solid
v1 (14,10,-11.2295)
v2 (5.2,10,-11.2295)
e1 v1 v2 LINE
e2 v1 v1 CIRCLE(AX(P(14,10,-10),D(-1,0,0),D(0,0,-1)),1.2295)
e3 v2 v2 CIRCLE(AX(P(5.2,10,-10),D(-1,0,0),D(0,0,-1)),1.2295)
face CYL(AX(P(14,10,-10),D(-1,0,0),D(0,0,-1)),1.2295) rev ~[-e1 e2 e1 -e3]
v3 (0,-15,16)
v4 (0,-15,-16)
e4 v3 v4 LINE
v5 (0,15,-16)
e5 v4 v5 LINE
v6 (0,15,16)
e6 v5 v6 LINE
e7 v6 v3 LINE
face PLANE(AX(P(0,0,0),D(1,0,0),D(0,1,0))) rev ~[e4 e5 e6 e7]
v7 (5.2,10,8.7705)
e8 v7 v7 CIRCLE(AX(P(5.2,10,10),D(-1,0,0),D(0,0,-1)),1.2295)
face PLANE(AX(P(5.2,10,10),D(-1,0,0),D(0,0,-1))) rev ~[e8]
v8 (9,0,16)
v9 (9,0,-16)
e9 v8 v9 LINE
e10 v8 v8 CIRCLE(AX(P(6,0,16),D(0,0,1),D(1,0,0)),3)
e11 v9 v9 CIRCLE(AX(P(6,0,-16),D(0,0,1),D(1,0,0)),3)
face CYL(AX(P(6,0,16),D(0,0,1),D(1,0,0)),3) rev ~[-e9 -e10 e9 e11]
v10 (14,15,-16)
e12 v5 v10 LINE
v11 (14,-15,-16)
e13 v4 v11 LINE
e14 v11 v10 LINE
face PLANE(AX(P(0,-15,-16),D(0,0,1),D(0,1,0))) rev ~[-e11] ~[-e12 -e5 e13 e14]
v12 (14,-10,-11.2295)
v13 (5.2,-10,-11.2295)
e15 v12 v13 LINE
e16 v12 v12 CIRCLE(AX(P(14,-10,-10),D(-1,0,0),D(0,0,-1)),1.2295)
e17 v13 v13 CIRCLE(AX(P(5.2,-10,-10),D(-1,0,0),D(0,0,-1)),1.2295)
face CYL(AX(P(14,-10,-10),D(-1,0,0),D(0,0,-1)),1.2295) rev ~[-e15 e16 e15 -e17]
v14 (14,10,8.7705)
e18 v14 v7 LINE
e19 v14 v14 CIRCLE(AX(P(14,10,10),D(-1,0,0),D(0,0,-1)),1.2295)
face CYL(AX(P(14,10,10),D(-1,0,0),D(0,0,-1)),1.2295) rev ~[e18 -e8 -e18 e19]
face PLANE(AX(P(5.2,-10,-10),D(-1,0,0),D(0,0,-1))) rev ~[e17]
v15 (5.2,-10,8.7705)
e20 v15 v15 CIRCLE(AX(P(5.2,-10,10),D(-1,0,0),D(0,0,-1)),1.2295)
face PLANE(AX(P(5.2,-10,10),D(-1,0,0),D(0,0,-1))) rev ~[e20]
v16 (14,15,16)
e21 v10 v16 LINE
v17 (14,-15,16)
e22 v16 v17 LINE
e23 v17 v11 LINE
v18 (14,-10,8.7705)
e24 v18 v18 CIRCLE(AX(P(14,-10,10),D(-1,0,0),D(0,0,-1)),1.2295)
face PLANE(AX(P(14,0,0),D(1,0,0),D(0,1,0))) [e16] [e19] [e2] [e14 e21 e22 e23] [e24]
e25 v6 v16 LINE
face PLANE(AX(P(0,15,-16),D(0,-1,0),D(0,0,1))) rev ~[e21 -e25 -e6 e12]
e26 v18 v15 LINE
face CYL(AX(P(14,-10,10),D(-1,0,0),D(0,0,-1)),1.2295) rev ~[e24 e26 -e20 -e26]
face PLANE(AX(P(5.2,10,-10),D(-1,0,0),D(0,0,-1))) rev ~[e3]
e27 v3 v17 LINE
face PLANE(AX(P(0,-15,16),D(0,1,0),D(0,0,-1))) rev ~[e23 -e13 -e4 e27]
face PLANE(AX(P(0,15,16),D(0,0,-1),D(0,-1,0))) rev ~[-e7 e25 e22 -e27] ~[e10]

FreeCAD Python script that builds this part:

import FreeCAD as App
import Part
import Sketcher

V = App.Vector

doc = App.newDocument("Part")
body = doc.addObject("PartDesign::Body", "Body")

sketch1 = body.newObject("Sketcher::SketchObject", "Sketch")
sketch1.AttachmentSupport = (doc.getObject("YZ_Plane"), [""])
sketch1.MapMode = "FlatFace"
sketch1.addGeometry(Part.LineSegment(V(-15, 16, 0), V(-15, -16, 0)), False)
sketch1.addGeometry(Part.LineSegment(V(-15, -16, 0), V(15, -16, 0)), False)
sketch1.addGeometry(Part.LineSegment(V(15, -16, 0), V(15, 16, 0)), False)
sketch1.addGeometry(Part.LineSegment(V(15, 16, 0), V(-15, 16, 0)), False)
sketch1.addConstraint(Sketcher.Constraint("Coincident", 0, 2, 1, 1))
sketch1.addConstraint(Sketcher.Constraint("Coincident", 1, 2, 2, 1))
sketch1.addConstraint(Sketcher.Constraint("Coincident", 2, 2, 3, 1))
sketch1.addConstraint(Sketcher.Constraint("Coincident", 3, 2, 0, 1))
sketch1.addConstraint(Sketcher.Constraint("Vertical", 0))
sketch1.addConstraint(Sketcher.Constraint("Horizontal", 1))
sketch1.addConstraint(Sketcher.Constraint("Vertical", 2))
sketch1.addConstraint(Sketcher.Constraint("Horizontal", 3))
sketch1.addConstraint(Sketcher.Constraint("Symmetric", 0, 2, 2, 2, -1, 1))
sketch1.addConstraint(Sketcher.Constraint("DistanceX", 1, 1, 1, 2, 30.0))
sketch1.addConstraint(Sketcher.Constraint("DistanceY", 0, 2, 0, 1, 32.0))
pad1 = body.newObject("PartDesign::Pad", "Pad")
pad1.Profile = sketch1
pad1.Length = 14

sketch2 = body.newObject("Sketcher::SketchObject", "Sketch001")
sketch2.AttachmentSupport = (doc.getObject("XY_Plane"), [""])
sketch2.MapMode = "FlatFace"
sketch2.AttachmentOffset = App.Placement(V(0, 0, 16), App.Rotation())
sketch2.addGeometry(Part.Circle(V(6, 0, 0), V(0, 0, 1), 3), False)
sketch2.addConstraint(Sketcher.Constraint("PointOnObject", 0, 3, -1))
sketch2.addConstraint(Sketcher.Constraint("Diameter", 0, 6.0))
sketch2.addConstraint(Sketcher.Constraint("DistanceX", -1, 1, 0, 3, 6.0))
pocket1 = body.newObject("PartDesign::Pocket", "Pocket")
pocket1.Profile = sketch2
pocket1.Type = "ThroughAll"

sketch3 = body.newObject("Sketcher::SketchObject", "Sketch002")
sketch3.AttachmentSupport = (doc.getObject("YZ_Plane"), [""])
sketch3.MapMode = "FlatFace"
sketch3.AttachmentOffset = App.Placement(V(0, 0, 14), App.Rotation())
sketch3.addGeometry(Part.Circle(V(10, -10, 0), V(0, 0, 1), 1.2295), False)
sketch3.addGeometry(Part.Circle(V(10, 10, 0), V(0, 0, 1), 1.2295), False)
sketch3.addGeometry(Part.Circle(V(-10, 10, 0), V(0, 0, 1), 1.2295), False)
sketch3.addGeometry(Part.Circle(V(-10, -10, 0), V(0, 0, 1), 1.2295), False)
sketch3.addConstraint(Sketcher.Constraint("Equal", 0, 1))
sketch3.addConstraint(Sketcher.Constraint("Equal", 1, 2))
sketch3.addConstraint(Sketcher.Constraint("Equal", 2, 3))
sketch3.addConstraint(Sketcher.Constraint("Symmetric", 0, 3, 2, 3, -1, 1))
sketch3.addConstraint(Sketcher.Constraint("Symmetric", 1, 3, 3, 3, -1, 1))
sketch3.addConstraint(Sketcher.Constraint("Symmetric", 1, 3, 2, 3, -2))
sketch3.addConstraint(Sketcher.Constraint("Diameter", 0, 2.459))
sketch3.addConstraint(Sketcher.Constraint("DistanceX", -1, 1, 0, 3, 10.0))
sketch3.addConstraint(Sketcher.Constraint("DistanceY", 0, 3, -1, 1, 10.0))
doc.recompute()
hole = body.newObject("PartDesign::Hole", "Hole")
hole.Profile = sketch3
hole.ThreadType = "None"
hole.Diameter = 2.459
hole.DepthType = "Dimension"
hole.Depth = 8.8
hole.DrillPoint = "Flat"

doc.recompute()
